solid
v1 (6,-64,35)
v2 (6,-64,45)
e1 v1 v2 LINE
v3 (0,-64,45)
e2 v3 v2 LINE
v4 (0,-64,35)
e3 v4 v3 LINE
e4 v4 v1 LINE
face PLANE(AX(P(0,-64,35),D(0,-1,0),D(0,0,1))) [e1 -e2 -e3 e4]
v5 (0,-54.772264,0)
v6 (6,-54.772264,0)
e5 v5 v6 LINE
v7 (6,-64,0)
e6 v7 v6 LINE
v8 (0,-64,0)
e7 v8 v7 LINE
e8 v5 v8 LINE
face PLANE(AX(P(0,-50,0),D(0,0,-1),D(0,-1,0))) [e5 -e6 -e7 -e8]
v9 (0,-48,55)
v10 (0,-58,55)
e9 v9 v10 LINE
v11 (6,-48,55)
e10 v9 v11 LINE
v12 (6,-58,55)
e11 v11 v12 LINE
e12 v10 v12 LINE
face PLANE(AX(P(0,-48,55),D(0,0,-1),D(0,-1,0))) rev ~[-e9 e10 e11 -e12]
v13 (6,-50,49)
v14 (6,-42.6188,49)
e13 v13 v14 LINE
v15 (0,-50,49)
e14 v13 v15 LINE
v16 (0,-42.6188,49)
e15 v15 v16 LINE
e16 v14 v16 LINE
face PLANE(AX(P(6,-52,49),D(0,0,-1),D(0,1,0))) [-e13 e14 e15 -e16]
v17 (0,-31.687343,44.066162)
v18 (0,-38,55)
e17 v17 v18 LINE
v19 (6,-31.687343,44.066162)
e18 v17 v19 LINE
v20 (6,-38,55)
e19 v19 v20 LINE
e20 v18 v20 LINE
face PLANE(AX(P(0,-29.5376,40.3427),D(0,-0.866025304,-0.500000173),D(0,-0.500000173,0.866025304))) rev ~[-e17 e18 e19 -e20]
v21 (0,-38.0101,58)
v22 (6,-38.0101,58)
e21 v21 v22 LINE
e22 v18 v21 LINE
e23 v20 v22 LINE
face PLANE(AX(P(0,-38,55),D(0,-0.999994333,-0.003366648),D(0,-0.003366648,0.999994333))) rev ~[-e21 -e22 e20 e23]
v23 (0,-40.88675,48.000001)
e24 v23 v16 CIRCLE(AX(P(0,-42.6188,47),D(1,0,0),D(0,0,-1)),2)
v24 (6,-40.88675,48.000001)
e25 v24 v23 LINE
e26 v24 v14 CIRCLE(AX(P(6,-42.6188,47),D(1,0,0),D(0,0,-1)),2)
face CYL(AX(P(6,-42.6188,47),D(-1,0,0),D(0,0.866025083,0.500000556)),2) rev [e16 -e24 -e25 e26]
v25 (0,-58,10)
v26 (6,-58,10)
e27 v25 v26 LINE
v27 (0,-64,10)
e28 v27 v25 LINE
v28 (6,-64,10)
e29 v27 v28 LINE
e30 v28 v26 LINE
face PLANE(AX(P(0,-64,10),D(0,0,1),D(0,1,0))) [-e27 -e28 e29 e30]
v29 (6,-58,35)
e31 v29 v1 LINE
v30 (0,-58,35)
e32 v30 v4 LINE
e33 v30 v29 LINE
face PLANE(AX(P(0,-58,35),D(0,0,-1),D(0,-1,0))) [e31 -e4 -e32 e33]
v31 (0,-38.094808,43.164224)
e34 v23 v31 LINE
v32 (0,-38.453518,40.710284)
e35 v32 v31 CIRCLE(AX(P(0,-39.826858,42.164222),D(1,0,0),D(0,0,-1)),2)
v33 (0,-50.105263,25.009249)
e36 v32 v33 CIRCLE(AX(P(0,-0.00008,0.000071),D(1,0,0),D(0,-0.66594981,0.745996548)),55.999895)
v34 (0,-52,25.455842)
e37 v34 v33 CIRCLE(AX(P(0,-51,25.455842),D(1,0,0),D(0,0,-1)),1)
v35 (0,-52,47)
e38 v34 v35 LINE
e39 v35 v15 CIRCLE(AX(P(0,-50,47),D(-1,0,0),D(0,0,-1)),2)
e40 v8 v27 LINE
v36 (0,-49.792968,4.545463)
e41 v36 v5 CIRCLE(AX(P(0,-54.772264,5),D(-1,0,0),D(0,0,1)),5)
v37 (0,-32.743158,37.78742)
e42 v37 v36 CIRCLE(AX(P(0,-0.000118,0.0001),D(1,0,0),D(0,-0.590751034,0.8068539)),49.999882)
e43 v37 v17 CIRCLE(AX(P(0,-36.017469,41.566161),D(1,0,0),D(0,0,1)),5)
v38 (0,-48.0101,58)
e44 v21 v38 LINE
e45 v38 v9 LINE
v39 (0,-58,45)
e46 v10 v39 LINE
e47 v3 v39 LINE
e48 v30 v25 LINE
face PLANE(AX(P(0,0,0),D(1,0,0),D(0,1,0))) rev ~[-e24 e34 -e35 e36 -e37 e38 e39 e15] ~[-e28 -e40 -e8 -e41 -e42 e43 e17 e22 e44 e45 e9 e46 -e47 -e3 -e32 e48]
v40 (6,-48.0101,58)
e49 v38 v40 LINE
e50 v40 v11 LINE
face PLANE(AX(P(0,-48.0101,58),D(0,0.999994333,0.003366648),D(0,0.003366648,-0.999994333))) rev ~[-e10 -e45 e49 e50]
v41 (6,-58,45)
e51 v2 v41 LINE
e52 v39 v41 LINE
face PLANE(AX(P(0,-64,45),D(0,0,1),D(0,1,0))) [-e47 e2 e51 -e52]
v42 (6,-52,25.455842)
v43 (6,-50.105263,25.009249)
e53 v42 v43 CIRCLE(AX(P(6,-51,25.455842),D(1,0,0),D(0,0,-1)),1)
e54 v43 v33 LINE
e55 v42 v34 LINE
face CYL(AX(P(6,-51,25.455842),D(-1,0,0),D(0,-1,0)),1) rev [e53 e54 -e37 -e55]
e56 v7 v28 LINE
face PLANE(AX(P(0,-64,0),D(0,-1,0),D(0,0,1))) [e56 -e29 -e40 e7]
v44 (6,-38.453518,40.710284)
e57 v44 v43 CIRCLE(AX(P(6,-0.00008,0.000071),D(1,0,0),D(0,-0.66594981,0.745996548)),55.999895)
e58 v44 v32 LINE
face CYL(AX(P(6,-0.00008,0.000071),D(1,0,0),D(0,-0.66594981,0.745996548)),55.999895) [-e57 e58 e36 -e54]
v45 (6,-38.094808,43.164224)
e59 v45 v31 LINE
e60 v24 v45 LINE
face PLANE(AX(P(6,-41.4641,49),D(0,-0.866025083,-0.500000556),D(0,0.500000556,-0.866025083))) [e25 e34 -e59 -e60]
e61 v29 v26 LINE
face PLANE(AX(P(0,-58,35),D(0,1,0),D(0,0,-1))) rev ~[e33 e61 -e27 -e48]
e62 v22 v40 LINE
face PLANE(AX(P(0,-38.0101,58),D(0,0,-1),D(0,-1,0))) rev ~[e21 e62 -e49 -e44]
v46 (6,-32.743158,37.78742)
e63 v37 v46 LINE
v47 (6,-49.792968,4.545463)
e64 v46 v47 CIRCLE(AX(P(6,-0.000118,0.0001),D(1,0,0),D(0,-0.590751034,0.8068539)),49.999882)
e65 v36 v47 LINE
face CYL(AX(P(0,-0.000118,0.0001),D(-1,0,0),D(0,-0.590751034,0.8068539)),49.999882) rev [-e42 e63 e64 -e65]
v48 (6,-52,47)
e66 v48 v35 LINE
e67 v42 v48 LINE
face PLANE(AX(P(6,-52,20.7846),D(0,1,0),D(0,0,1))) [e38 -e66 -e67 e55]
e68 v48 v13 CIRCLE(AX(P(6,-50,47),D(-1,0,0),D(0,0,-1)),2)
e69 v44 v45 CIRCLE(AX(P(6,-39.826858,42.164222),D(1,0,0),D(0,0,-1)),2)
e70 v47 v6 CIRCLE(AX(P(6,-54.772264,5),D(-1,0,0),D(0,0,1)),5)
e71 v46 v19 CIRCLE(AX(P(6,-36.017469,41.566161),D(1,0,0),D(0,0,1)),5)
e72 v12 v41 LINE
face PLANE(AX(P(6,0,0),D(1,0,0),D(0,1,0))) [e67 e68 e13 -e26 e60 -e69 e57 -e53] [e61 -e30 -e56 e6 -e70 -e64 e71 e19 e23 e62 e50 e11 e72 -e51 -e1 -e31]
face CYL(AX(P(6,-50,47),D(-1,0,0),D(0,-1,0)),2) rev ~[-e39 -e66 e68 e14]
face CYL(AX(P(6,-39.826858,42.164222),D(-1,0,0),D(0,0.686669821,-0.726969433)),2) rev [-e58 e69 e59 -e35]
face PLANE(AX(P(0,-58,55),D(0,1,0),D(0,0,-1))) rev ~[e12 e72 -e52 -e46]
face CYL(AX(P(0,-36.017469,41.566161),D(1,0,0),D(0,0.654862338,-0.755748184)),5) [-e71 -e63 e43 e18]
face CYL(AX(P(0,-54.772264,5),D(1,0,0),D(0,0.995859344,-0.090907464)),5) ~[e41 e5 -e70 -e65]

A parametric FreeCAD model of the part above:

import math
import FreeCAD as App
import Part
import Sketcher
from FreeCAD import Vector
Q = App.Units.Quantity


def edges_at(feature, points):
    """Names of the edges that pass closest to the given points."""
    edges = feature.Shape.Edges
    near = lambda p: min(range(len(edges)), key=lambda i: edges[i].distToShape(Part.Vertex(*p))[0])
    return sorted({f"Edge{near(p) + 1}" for p in points})

doc = App.newDocument("Part")
body = doc.addObject("PartDesign::Body", "Body")

# Sketch on YZ plane
sketch1 = doc.addObject("Sketcher::SketchObject", "Sketch")
body.addObject(sketch1)
sketch1.AttachmentSupport = (doc.YZ_Plane, [""])
sketch1.MapMode = "FlatFace"
sketch1.addGeometry(Part.ArcOfCircle(Part.Circle(Vector(0, 0, 0), Vector(0, 0, 1), 50), math.radians(126), math.radians(180)), False)
sketch1.addGeometry(Part.LineSegment(Vector(-29.5, 40.3, 0), Vector(-38, 55, 0)), False)
sketch1.addGeometry(Part.LineSegment(Vector(-38, 55, 0), Vector(-38, 58, 0)), False)
sketch1.addGeometry(Part.LineSegment(Vector(-38, 58, 0), Vector(-48, 58, 0)), False)
sketch1.addGeometry(Part.LineSegment(Vector(-48, 58, 0), Vector(-48, 55, 0)), False)
sketch1.addGeometry(Part.LineSegment(Vector(-48, 55, 0), Vector(-58, 55, 0)), False)
sketch1.addGeometry(Part.LineSegment(Vector(-58, 55, 0), Vector(-58, 45, 0)), False)
sketch1.addGeometry(Part.LineSegment(Vector(-58, 45, 0), Vector(-64, 45, 0)), False)
sketch1.addGeometry(Part.LineSegment(Vector(-64, 45, 0), Vector(-64, 35, 0)), False)
sketch1.addGeometry(Part.LineSegment(Vector(-64, 35, 0), Vector(-58, 35, 0)), False)
sketch1.addGeometry(Part.LineSegment(Vector(-58, 35, 0), Vector(-58, 10, 0)), False)
sketch1.addGeometry(Part.LineSegment(Vector(-58, 10, 0), Vector(-64, 10, 0)), False)
sketch1.addGeometry(Part.LineSegment(Vector(-64, 10, 0), Vector(-64, 0, 0)), False)
sketch1.addGeometry(Part.LineSegment(Vector(-64, 0, 0), Vector(-50, 0, 0)), False)
sketch1.addConstraint(Sketcher.Constraint("Coincident", 0, 1, 1, 1))
sketch1.addConstraint(Sketcher.Constraint("Coincident", 1, 2, 2, 1))
sketch1.addConstraint(Sketcher.Constraint("Coincident", 2, 2, 3, 1))
sketch1.addConstraint(Sketcher.Constraint("Coincident", 3, 2, 4, 1))
sketch1.addConstraint(Sketcher.Constraint("Coincident", 4, 2, 5, 1))
sketch1.addConstraint(Sketcher.Constraint("Coincident", 5, 2, 6, 1))
sketch1.addConstraint(Sketcher.Constraint("Coincident", 6, 2, 7, 1))
sketch1.addConstraint(Sketcher.Constraint("Coincident", 7, 2, 8, 1))
sketch1.addConstraint(Sketcher.Constraint("Coincident", 8, 2, 9, 1))
sketch1.addConstraint(Sketcher.Constraint("Coincident", 9, 2, 10, 1))
sketch1.addConstraint(Sketcher.Constraint("Coincident", 10, 2, 11, 1))
sketch1.addConstraint(Sketcher.Constraint("Coincident", 11, 2, 12, 1))
sketch1.addConstraint(Sketcher.Constraint("Coincident", 12, 2, 13, 1))
sketch1.addConstraint(Sketcher.Constraint("Coincident", 13, 2, 0, 2))
sketch1.addConstraint(Sketcher.Constraint("Horizontal", 3))
sketch1.addConstraint(Sketcher.Constraint("Horizontal", 5))
sketch1.addConstraint(Sketcher.Constraint("Vertical", 6))
sketch1.addConstraint(Sketcher.Constraint("Horizontal", 7))
sketch1.addConstraint(Sketcher.Constraint("Vertical", 8))
sketch1.addConstraint(Sketcher.Constraint("Horizontal", 9))
sketch1.addConstraint(Sketcher.Constraint("Vertical", 10))
sketch1.addConstraint(Sketcher.Constraint("Horizontal", 11))
sketch1.addConstraint(Sketcher.Constraint("Vertical", 12))
sketch1.addConstraint(Sketcher.Constraint("Horizontal", 13))
sketch1.addConstraint(Sketcher.Constraint("Coincident", 0, 3, -1, 1))
sketch1.addConstraint(Sketcher.Constraint("PointOnObject", 12, 2, -1))
sketch1.addConstraint(Sketcher.Constraint("Parallel", 2, 4))
sketch1.addConstraint(Sketcher.Constraint("Horizontal", 1, 2, 4, 2))
sketch1.addConstraint(Sketcher.Constraint("Vertical", 6, 2, 9, 2))
sketch1.addConstraint(Sketcher.Constraint("Vertical", 8, 2, 11, 2))
sketch1.addConstraint(Sketcher.Constraint("Equal", 3, 5))
sketch1.addConstraint(Sketcher.Constraint("Equal", 5, 6))
sketch1.addConstraint(Sketcher.Constraint("Equal", 6, 8))
sketch1.addConstraint(Sketcher.Constraint("Equal", 8, 12))
sketch1.addConstraint(Sketcher.Constraint("Radius", 0, Q("50 mm")))
sketch1.addConstraint(Sketcher.Constraint("DistanceX", 3, 2, 3, 1, Q("10 mm")))
sketch1.addConstraint(Sketcher.Constraint("DistanceX", 7, 2, 7, 1, Q("6 mm")))
sketch1.addConstraint(Sketcher.Constraint("DistanceY", 10, 2, 10, 1, Q("25 mm")))
sketch1.addConstraint(Sketcher.Constraint("Angle", 1, Q("120 deg")))
sketch1.addConstraint(Sketcher.Constraint("Distance", 2, Q("3 mm")))
sketch1.addConstraint(Sketcher.Constraint("DistanceX", 5, 2, -1, 1, Q("58 mm")))
sketch1.addConstraint(Sketcher.Constraint("DistanceX", 2, 2, -1, 1, Q("38.01 mm")))
pad1 = doc.addObject("PartDesign::Pad", "Pad")
body.addObject(pad1)
pad1.Profile = sketch1
pad1.Length = 6
doc.recompute()

fillet = doc.addObject("PartDesign::Fillet", "Fillet")
body.addObject(fillet)
fillet.Base = (pad1, edges_at(pad1, [(3, -29.538, 40.343), (3, -50, 0)]))
fillet.Radius = 5

# Sketch on YZ plane
sketch2 = doc.addObject("Sketcher::SketchObject", "Sketch001")
body.addObject(sketch2)
sketch2.AttachmentSupport = (doc.YZ_Plane, [""])
sketch2.MapMode = "FlatFace"
sketch2.AttachmentOffset = App.Placement(Vector(0, 0, 6), App.Rotation())
sketch2.addGeometry(Part.ArcOfCircle(Part.Circle(Vector(0, 0, 0), Vector(0, 0, 1), 56), math.radians(132), math.radians(158)), False)
sketch2.addGeometry(Part.LineSegment(Vector(-37, 42, 0), Vector(-41, 49, 0)), False)
sketch2.addGeometry(Part.LineSegment(Vector(-41, 49, 0), Vector(-52, 49, 0)), False)
sketch2.addGeometry(Part.LineSegment(Vector(-52, 49, 0), Vector(-52, 21, 0)), False)
sketch2.addConstraint(Sketcher.Constraint("Coincident", 0, 1, 1, 1))
sketch2.addConstraint(Sketcher.Constraint("Coincident", 1, 2, 2, 1))
sketch2.addConstraint(Sketcher.Constraint("Coincident", 2, 2, 3, 1))
sketch2.addConstraint(Sketcher.Constraint("Coincident", 3, 2, 0, 2))
sketch2.addConstraint(Sketcher.Constraint("Horizontal", 2))
sketch2.addConstraint(Sketcher.Constraint("Vertical", 3))
sketch2.addConstraint(Sketcher.Constraint("Coincident", 0, 3, -1, 1))
sketch2.addConstraint(Sketcher.Constraint("Radius", 0, Q("56 mm")))
sketch2.addConstraint(Sketcher.Constraint("Angle", 1, Q("120 deg")))
sketch2.addConstraint(Sketcher.Constraint("DistanceY", -1, 1, 1, 2, Q("49 mm")))
sketch2.addConstraint(Sketcher.Constraint("DistanceX", 2, 2, -1, 1, Q("52 mm")))
sketch2.addConstraint(Sketcher.Constraint("DistanceX", 2, 2, 2, 1, Q("10.536 mm")))
pocket1 = doc.addObject("PartDesign::Pocket", "Pocket")
body.addObject(pocket1)
pocket1.Profile = sketch2
pocket1.Type = "ThroughAll"
doc.recompute()

fillet2 = doc.addObject("PartDesign::Fillet", "Fillet001")
body.addObject(fillet2)
fillet2.Base = (pocket1, edges_at(pocket1, [(3, -52, 20.785)]))
fillet2.Radius = 1
doc.recompute()

fillet3 = doc.addObject("PartDesign::Fillet", "Fillet002")
body.addObject(fillet3)
fillet3.Base = (fillet2, edges_at(fillet2, [(3, -52, 49), (3, -41.464, 49), (3, -37.293, 41.776)]))
fillet3.Radius = 2

doc.recompute()
